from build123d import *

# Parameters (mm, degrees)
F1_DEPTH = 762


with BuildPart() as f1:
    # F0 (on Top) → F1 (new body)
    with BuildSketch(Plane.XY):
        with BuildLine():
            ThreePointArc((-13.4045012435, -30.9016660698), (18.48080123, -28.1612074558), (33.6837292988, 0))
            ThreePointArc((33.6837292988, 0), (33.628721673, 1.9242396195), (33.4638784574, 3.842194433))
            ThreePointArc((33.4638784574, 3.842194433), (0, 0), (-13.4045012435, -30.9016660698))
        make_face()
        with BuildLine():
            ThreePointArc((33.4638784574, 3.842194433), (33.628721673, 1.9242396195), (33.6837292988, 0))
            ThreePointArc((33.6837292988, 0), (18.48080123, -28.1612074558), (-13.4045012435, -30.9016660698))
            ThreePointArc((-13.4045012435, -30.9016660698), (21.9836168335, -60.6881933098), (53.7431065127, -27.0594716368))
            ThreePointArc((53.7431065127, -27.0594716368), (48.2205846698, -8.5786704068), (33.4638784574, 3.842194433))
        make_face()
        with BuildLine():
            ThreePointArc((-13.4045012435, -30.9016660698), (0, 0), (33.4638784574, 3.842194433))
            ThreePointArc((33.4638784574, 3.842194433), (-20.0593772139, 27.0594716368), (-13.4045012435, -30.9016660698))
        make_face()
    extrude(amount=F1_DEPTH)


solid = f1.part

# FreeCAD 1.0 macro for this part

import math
import FreeCAD as App
import Part
import Sketcher
from FreeCAD import Vector
Q = App.Units.Quantity

doc = App.newDocument("Part")
params = doc.addObject("Spreadsheet::Sheet", "Params")
for row, (alias, value) in enumerate([
    ("pad1_length", "30 in"),
], start=1):
    params.set(f"A{row}", alias)
    params.set(f"B{row}", "=" + value)
    params.setAlias(f"B{row}", alias)

body = doc.addObject("PartDesign::Body", "Body")

# Sketch on XY plane
sketch1 = doc.addObject("Sketcher::SketchObject", "Sketch")
body.addObject(sketch1)
sketch1.AttachmentSupport = (doc.XY_Plane, [""])
sketch1.MapMode = "FlatFace"
sketch1.addGeometry([
    Part.ArcOfCircle(Part.Circle(Vector(20.059377, -27.059472, 0), Vector(0, 0, 1), 33.683729), math.radians(-173.450199), math.radians(0)),
    Part.ArcOfCircle(Part.Circle(Vector(20.059377, -27.059472, 0), Vector(0, 0, 1), 33.683729), math.radians(0), math.radians(66.549801)),
    Part.ArcOfCircle(Part.Circle(Vector(0, 0, 0), Vector(0, 0, 1), 33.683729), math.radians(6.549801), math.radians(246.549801)),
], False)
sketch1.addConstraint([
    Sketcher.Constraint("Tangent", 0, 2, 1, 1),
    Sketcher.Constraint("Coincident", 1, 2, 2, 1),
    Sketcher.Constraint("Coincident", 2, 2, 0, 1),
    Sketcher.Constraint("Coincident", 2, 3, -1, 1),
    Sketcher.Constraint("Equal", 0, 1),
    Sketcher.Constraint("Equal", 1, 2),
    Sketcher.Constraint("Horizontal", 1, 3, 0, 2),
    Sketcher.Constraint("Radius", 0, Q("33.683729 mm")),
    Sketcher.Constraint("DistanceX", 2, 2, -1, 1, Q("13.404501 mm")),
    Sketcher.Constraint("DistanceY", 0, 3, -1, 1, Q("27.059472 mm")),
])
pad1 = doc.addObject("PartDesign::Pad", "Pad")
body.addObject(pad1)
pad1.Profile = sketch1
pad1.setExpression("Length", "Params.pad1_length")

doc.recompute()
